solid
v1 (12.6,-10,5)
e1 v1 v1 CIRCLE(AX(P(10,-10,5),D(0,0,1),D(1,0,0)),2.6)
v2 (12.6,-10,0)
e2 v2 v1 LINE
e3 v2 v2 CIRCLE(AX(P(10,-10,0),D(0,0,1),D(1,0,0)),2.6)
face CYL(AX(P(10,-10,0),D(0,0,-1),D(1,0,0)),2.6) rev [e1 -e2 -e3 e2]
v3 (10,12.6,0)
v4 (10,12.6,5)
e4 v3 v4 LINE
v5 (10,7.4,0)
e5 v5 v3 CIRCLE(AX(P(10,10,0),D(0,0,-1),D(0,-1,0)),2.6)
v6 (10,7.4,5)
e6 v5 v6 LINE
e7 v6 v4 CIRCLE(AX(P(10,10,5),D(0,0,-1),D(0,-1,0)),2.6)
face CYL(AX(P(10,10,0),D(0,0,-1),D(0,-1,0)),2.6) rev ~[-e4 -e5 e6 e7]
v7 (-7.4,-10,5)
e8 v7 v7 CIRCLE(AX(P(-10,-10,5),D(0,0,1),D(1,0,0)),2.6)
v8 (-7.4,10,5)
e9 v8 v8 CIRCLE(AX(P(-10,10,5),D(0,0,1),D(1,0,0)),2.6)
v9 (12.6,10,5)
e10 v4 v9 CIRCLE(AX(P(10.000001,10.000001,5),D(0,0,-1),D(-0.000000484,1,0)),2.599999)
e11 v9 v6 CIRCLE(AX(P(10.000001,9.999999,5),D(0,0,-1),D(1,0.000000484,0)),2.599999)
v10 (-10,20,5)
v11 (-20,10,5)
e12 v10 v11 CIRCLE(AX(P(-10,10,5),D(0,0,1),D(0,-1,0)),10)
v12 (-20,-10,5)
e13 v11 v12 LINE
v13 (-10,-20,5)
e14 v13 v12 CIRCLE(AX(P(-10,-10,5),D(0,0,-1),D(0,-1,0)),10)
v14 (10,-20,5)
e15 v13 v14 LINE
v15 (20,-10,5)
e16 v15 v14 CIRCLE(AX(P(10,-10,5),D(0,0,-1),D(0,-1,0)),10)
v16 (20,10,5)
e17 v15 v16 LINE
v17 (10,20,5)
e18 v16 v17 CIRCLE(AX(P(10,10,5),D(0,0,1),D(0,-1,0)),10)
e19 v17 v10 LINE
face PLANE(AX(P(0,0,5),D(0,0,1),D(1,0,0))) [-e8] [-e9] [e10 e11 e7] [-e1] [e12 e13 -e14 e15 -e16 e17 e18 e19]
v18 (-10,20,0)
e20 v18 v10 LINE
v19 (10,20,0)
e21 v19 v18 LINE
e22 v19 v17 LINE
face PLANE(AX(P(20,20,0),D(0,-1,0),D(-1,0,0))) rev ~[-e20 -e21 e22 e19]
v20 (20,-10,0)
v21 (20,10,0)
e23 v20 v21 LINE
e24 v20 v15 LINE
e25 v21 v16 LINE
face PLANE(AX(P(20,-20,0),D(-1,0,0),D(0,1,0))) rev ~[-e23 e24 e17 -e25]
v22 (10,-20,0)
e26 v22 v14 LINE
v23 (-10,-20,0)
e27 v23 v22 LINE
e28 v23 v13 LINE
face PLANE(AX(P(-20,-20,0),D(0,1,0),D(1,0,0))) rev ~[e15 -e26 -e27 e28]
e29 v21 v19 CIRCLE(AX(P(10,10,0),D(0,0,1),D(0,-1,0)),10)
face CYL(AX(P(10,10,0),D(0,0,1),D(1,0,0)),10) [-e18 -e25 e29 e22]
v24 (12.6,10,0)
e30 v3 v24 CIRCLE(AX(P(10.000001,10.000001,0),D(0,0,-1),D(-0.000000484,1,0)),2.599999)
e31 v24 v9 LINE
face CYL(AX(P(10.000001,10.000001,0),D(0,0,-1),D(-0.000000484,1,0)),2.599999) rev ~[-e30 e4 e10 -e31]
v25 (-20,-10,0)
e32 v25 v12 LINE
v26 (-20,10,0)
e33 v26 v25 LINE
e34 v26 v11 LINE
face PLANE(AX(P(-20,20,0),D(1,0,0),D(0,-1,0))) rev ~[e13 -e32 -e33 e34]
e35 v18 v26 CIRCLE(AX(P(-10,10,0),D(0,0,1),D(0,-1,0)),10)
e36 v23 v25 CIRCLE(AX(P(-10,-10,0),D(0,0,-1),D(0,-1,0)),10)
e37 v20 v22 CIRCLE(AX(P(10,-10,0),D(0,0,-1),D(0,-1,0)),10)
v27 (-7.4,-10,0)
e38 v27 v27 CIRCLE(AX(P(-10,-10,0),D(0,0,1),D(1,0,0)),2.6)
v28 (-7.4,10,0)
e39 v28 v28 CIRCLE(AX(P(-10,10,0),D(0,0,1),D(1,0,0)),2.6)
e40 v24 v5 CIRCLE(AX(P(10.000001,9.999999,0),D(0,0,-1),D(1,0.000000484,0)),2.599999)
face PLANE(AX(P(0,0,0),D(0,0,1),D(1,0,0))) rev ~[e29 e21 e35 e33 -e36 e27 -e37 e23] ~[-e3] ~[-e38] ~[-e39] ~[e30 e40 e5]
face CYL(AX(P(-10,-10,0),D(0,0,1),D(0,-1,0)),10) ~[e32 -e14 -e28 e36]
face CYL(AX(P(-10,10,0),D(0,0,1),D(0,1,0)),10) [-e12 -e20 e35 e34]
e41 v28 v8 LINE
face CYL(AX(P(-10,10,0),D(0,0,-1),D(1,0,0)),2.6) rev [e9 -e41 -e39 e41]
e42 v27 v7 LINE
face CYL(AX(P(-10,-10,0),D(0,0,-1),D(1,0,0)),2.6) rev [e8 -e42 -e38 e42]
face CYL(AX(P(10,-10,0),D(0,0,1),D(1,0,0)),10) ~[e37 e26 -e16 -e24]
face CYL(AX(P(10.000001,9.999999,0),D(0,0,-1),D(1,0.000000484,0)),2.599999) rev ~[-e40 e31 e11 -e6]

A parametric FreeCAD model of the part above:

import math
import FreeCAD as App
import Part
import Sketcher

V = App.Vector


def edges_at(feature, points):
    """Names of the edges that pass closest to the given points."""
    edges = feature.Shape.Edges
    near = lambda p: min(range(len(edges)), key=lambda i: edges[i].distToShape(Part.Vertex(*p))[0])
    return sorted({f"Edge{near(p) + 1}" for p in points})


def add_polygon(sketch, points):
    """Adds a closed chain of lines whose ends are joined by coincident constraints."""
    first, n = sketch.GeometryCount, len(points)
    for a, b in zip(points, points[1:] + points[:1]):
        sketch.addGeometry(Part.LineSegment(App.Vector(*a, 0), App.Vector(*b, 0)), False)
    for i in range(n):
        sketch.addConstraint(Sketcher.Constraint("Coincident", first + i, 2, first + (i + 1) % n, 1))

doc = App.newDocument("Part")
body = doc.addObject("PartDesign::Body", "Body")

# Sketch on XY plane
sketch1 = body.newObject("Sketcher::SketchObject", "Sketch")
sketch1.AttachmentSupport = (doc.getObject("XY_Plane"), [""])
sketch1.MapMode = "FlatFace"
add_polygon(sketch1, [(20, -20), (20, 20), (-20, 20), (-20, -20)])  # lines 0-3
sketch1.addGeometry(Part.Circle(V(-10, -10, 0), V(0, 0, 1), 2.6), False)  # 4
sketch1.addGeometry(Part.Circle(V(10, -10, 0), V(0, 0, 1), 2.6), False)  # 5
sketch1.addGeometry(Part.Circle(V(-10, 10, 0), V(0, 0, 1), 2.6), False)  # 6
sketch1.addGeometry(Part.ArcOfCircle(Part.Circle(V(10, 10, 0), V(0, 0, 1), 2.6), math.radians(-90), math.radians(0)), False)  # 7
sketch1.addGeometry(Part.ArcOfCircle(Part.Circle(V(10, 10, 0), V(0, 0, 1), 2.6), math.radians(90), math.radians(270)), False)  # 8
sketch1.addGeometry(Part.ArcOfCircle(Part.Circle(V(10, 10, 0), V(0, 0, 1), 2.6), math.radians(0), math.radians(90)), False)  # 9
sketch1.addConstraint(Sketcher.Constraint("Tangent", 7, 1, 8, 2))
sketch1.addConstraint(Sketcher.Constraint("Tangent", 8, 1, 9, 2))
sketch1.addConstraint(Sketcher.Constraint("Tangent", 9, 1, 7, 2))
sketch1.addConstraint(Sketcher.Constraint("Vertical", 0))
sketch1.addConstraint(Sketcher.Constraint("Horizontal", 1))
sketch1.addConstraint(Sketcher.Constraint("Vertical", 2))
sketch1.addConstraint(Sketcher.Constraint("Horizontal", 3))
sketch1.addConstraint(Sketcher.Constraint("Equal", 4, 5))
sketch1.addConstraint(Sketcher.Constraint("Equal", 5, 6))
sketch1.addConstraint(Sketcher.Constraint("Equal", 6, 7))
sketch1.addConstraint(Sketcher.Constraint("Symmetric", 5, 3, 6, 3, -1, 1))
sketch1.addConstraint(Sketcher.Constraint("Symmetric", 4, 3, 7, 3, -1, 1))
sketch1.addConstraint(Sketcher.Constraint("Symmetric", 0, 2, 2, 2, -1, 1))
sketch1.addConstraint(Sketcher.Constraint("Symmetric", 4, 3, 5, 3, -2))
sketch1.addConstraint(Sketcher.Constraint("Horizontal", 8, 3, 9, 1))
sketch1.addConstraint(Sketcher.Constraint("Vertical", 9, 3, 7, 1))
sketch1.addConstraint(Sketcher.Constraint("Vertical", 7, 1, 8, 1))
sketch1.addConstraint(Sketcher.Constraint("Equal", 3, 0))
sketch1.addConstraint(Sketcher.Constraint("Diameter", 4, 5.2))
sketch1.addConstraint(Sketcher.Constraint("DistanceX", 1, 2, 1, 1, 40.0))
sketch1.addConstraint(Sketcher.Constraint("DistanceX", 4, 3, -1, 1, 10.0))
sketch1.addConstraint(Sketcher.Constraint("DistanceY", 4, 3, -1, 1, 10.0))
pad1 = body.newObject("PartDesign::Pad", "Pad")
pad1.Profile = sketch1
pad1.Length = 5
doc.recompute()

fillet = body.newObject("PartDesign::Fillet", "Fillet")
fillet.Base = (pad1, edges_at(pad1, [
    (20, -20, 2.5),
    (20, 20, 2.5),
    (-20, -20, 2.5),
    (-20, 20, 2.5),
]))
fillet.Radius = 10

doc.recompute()
